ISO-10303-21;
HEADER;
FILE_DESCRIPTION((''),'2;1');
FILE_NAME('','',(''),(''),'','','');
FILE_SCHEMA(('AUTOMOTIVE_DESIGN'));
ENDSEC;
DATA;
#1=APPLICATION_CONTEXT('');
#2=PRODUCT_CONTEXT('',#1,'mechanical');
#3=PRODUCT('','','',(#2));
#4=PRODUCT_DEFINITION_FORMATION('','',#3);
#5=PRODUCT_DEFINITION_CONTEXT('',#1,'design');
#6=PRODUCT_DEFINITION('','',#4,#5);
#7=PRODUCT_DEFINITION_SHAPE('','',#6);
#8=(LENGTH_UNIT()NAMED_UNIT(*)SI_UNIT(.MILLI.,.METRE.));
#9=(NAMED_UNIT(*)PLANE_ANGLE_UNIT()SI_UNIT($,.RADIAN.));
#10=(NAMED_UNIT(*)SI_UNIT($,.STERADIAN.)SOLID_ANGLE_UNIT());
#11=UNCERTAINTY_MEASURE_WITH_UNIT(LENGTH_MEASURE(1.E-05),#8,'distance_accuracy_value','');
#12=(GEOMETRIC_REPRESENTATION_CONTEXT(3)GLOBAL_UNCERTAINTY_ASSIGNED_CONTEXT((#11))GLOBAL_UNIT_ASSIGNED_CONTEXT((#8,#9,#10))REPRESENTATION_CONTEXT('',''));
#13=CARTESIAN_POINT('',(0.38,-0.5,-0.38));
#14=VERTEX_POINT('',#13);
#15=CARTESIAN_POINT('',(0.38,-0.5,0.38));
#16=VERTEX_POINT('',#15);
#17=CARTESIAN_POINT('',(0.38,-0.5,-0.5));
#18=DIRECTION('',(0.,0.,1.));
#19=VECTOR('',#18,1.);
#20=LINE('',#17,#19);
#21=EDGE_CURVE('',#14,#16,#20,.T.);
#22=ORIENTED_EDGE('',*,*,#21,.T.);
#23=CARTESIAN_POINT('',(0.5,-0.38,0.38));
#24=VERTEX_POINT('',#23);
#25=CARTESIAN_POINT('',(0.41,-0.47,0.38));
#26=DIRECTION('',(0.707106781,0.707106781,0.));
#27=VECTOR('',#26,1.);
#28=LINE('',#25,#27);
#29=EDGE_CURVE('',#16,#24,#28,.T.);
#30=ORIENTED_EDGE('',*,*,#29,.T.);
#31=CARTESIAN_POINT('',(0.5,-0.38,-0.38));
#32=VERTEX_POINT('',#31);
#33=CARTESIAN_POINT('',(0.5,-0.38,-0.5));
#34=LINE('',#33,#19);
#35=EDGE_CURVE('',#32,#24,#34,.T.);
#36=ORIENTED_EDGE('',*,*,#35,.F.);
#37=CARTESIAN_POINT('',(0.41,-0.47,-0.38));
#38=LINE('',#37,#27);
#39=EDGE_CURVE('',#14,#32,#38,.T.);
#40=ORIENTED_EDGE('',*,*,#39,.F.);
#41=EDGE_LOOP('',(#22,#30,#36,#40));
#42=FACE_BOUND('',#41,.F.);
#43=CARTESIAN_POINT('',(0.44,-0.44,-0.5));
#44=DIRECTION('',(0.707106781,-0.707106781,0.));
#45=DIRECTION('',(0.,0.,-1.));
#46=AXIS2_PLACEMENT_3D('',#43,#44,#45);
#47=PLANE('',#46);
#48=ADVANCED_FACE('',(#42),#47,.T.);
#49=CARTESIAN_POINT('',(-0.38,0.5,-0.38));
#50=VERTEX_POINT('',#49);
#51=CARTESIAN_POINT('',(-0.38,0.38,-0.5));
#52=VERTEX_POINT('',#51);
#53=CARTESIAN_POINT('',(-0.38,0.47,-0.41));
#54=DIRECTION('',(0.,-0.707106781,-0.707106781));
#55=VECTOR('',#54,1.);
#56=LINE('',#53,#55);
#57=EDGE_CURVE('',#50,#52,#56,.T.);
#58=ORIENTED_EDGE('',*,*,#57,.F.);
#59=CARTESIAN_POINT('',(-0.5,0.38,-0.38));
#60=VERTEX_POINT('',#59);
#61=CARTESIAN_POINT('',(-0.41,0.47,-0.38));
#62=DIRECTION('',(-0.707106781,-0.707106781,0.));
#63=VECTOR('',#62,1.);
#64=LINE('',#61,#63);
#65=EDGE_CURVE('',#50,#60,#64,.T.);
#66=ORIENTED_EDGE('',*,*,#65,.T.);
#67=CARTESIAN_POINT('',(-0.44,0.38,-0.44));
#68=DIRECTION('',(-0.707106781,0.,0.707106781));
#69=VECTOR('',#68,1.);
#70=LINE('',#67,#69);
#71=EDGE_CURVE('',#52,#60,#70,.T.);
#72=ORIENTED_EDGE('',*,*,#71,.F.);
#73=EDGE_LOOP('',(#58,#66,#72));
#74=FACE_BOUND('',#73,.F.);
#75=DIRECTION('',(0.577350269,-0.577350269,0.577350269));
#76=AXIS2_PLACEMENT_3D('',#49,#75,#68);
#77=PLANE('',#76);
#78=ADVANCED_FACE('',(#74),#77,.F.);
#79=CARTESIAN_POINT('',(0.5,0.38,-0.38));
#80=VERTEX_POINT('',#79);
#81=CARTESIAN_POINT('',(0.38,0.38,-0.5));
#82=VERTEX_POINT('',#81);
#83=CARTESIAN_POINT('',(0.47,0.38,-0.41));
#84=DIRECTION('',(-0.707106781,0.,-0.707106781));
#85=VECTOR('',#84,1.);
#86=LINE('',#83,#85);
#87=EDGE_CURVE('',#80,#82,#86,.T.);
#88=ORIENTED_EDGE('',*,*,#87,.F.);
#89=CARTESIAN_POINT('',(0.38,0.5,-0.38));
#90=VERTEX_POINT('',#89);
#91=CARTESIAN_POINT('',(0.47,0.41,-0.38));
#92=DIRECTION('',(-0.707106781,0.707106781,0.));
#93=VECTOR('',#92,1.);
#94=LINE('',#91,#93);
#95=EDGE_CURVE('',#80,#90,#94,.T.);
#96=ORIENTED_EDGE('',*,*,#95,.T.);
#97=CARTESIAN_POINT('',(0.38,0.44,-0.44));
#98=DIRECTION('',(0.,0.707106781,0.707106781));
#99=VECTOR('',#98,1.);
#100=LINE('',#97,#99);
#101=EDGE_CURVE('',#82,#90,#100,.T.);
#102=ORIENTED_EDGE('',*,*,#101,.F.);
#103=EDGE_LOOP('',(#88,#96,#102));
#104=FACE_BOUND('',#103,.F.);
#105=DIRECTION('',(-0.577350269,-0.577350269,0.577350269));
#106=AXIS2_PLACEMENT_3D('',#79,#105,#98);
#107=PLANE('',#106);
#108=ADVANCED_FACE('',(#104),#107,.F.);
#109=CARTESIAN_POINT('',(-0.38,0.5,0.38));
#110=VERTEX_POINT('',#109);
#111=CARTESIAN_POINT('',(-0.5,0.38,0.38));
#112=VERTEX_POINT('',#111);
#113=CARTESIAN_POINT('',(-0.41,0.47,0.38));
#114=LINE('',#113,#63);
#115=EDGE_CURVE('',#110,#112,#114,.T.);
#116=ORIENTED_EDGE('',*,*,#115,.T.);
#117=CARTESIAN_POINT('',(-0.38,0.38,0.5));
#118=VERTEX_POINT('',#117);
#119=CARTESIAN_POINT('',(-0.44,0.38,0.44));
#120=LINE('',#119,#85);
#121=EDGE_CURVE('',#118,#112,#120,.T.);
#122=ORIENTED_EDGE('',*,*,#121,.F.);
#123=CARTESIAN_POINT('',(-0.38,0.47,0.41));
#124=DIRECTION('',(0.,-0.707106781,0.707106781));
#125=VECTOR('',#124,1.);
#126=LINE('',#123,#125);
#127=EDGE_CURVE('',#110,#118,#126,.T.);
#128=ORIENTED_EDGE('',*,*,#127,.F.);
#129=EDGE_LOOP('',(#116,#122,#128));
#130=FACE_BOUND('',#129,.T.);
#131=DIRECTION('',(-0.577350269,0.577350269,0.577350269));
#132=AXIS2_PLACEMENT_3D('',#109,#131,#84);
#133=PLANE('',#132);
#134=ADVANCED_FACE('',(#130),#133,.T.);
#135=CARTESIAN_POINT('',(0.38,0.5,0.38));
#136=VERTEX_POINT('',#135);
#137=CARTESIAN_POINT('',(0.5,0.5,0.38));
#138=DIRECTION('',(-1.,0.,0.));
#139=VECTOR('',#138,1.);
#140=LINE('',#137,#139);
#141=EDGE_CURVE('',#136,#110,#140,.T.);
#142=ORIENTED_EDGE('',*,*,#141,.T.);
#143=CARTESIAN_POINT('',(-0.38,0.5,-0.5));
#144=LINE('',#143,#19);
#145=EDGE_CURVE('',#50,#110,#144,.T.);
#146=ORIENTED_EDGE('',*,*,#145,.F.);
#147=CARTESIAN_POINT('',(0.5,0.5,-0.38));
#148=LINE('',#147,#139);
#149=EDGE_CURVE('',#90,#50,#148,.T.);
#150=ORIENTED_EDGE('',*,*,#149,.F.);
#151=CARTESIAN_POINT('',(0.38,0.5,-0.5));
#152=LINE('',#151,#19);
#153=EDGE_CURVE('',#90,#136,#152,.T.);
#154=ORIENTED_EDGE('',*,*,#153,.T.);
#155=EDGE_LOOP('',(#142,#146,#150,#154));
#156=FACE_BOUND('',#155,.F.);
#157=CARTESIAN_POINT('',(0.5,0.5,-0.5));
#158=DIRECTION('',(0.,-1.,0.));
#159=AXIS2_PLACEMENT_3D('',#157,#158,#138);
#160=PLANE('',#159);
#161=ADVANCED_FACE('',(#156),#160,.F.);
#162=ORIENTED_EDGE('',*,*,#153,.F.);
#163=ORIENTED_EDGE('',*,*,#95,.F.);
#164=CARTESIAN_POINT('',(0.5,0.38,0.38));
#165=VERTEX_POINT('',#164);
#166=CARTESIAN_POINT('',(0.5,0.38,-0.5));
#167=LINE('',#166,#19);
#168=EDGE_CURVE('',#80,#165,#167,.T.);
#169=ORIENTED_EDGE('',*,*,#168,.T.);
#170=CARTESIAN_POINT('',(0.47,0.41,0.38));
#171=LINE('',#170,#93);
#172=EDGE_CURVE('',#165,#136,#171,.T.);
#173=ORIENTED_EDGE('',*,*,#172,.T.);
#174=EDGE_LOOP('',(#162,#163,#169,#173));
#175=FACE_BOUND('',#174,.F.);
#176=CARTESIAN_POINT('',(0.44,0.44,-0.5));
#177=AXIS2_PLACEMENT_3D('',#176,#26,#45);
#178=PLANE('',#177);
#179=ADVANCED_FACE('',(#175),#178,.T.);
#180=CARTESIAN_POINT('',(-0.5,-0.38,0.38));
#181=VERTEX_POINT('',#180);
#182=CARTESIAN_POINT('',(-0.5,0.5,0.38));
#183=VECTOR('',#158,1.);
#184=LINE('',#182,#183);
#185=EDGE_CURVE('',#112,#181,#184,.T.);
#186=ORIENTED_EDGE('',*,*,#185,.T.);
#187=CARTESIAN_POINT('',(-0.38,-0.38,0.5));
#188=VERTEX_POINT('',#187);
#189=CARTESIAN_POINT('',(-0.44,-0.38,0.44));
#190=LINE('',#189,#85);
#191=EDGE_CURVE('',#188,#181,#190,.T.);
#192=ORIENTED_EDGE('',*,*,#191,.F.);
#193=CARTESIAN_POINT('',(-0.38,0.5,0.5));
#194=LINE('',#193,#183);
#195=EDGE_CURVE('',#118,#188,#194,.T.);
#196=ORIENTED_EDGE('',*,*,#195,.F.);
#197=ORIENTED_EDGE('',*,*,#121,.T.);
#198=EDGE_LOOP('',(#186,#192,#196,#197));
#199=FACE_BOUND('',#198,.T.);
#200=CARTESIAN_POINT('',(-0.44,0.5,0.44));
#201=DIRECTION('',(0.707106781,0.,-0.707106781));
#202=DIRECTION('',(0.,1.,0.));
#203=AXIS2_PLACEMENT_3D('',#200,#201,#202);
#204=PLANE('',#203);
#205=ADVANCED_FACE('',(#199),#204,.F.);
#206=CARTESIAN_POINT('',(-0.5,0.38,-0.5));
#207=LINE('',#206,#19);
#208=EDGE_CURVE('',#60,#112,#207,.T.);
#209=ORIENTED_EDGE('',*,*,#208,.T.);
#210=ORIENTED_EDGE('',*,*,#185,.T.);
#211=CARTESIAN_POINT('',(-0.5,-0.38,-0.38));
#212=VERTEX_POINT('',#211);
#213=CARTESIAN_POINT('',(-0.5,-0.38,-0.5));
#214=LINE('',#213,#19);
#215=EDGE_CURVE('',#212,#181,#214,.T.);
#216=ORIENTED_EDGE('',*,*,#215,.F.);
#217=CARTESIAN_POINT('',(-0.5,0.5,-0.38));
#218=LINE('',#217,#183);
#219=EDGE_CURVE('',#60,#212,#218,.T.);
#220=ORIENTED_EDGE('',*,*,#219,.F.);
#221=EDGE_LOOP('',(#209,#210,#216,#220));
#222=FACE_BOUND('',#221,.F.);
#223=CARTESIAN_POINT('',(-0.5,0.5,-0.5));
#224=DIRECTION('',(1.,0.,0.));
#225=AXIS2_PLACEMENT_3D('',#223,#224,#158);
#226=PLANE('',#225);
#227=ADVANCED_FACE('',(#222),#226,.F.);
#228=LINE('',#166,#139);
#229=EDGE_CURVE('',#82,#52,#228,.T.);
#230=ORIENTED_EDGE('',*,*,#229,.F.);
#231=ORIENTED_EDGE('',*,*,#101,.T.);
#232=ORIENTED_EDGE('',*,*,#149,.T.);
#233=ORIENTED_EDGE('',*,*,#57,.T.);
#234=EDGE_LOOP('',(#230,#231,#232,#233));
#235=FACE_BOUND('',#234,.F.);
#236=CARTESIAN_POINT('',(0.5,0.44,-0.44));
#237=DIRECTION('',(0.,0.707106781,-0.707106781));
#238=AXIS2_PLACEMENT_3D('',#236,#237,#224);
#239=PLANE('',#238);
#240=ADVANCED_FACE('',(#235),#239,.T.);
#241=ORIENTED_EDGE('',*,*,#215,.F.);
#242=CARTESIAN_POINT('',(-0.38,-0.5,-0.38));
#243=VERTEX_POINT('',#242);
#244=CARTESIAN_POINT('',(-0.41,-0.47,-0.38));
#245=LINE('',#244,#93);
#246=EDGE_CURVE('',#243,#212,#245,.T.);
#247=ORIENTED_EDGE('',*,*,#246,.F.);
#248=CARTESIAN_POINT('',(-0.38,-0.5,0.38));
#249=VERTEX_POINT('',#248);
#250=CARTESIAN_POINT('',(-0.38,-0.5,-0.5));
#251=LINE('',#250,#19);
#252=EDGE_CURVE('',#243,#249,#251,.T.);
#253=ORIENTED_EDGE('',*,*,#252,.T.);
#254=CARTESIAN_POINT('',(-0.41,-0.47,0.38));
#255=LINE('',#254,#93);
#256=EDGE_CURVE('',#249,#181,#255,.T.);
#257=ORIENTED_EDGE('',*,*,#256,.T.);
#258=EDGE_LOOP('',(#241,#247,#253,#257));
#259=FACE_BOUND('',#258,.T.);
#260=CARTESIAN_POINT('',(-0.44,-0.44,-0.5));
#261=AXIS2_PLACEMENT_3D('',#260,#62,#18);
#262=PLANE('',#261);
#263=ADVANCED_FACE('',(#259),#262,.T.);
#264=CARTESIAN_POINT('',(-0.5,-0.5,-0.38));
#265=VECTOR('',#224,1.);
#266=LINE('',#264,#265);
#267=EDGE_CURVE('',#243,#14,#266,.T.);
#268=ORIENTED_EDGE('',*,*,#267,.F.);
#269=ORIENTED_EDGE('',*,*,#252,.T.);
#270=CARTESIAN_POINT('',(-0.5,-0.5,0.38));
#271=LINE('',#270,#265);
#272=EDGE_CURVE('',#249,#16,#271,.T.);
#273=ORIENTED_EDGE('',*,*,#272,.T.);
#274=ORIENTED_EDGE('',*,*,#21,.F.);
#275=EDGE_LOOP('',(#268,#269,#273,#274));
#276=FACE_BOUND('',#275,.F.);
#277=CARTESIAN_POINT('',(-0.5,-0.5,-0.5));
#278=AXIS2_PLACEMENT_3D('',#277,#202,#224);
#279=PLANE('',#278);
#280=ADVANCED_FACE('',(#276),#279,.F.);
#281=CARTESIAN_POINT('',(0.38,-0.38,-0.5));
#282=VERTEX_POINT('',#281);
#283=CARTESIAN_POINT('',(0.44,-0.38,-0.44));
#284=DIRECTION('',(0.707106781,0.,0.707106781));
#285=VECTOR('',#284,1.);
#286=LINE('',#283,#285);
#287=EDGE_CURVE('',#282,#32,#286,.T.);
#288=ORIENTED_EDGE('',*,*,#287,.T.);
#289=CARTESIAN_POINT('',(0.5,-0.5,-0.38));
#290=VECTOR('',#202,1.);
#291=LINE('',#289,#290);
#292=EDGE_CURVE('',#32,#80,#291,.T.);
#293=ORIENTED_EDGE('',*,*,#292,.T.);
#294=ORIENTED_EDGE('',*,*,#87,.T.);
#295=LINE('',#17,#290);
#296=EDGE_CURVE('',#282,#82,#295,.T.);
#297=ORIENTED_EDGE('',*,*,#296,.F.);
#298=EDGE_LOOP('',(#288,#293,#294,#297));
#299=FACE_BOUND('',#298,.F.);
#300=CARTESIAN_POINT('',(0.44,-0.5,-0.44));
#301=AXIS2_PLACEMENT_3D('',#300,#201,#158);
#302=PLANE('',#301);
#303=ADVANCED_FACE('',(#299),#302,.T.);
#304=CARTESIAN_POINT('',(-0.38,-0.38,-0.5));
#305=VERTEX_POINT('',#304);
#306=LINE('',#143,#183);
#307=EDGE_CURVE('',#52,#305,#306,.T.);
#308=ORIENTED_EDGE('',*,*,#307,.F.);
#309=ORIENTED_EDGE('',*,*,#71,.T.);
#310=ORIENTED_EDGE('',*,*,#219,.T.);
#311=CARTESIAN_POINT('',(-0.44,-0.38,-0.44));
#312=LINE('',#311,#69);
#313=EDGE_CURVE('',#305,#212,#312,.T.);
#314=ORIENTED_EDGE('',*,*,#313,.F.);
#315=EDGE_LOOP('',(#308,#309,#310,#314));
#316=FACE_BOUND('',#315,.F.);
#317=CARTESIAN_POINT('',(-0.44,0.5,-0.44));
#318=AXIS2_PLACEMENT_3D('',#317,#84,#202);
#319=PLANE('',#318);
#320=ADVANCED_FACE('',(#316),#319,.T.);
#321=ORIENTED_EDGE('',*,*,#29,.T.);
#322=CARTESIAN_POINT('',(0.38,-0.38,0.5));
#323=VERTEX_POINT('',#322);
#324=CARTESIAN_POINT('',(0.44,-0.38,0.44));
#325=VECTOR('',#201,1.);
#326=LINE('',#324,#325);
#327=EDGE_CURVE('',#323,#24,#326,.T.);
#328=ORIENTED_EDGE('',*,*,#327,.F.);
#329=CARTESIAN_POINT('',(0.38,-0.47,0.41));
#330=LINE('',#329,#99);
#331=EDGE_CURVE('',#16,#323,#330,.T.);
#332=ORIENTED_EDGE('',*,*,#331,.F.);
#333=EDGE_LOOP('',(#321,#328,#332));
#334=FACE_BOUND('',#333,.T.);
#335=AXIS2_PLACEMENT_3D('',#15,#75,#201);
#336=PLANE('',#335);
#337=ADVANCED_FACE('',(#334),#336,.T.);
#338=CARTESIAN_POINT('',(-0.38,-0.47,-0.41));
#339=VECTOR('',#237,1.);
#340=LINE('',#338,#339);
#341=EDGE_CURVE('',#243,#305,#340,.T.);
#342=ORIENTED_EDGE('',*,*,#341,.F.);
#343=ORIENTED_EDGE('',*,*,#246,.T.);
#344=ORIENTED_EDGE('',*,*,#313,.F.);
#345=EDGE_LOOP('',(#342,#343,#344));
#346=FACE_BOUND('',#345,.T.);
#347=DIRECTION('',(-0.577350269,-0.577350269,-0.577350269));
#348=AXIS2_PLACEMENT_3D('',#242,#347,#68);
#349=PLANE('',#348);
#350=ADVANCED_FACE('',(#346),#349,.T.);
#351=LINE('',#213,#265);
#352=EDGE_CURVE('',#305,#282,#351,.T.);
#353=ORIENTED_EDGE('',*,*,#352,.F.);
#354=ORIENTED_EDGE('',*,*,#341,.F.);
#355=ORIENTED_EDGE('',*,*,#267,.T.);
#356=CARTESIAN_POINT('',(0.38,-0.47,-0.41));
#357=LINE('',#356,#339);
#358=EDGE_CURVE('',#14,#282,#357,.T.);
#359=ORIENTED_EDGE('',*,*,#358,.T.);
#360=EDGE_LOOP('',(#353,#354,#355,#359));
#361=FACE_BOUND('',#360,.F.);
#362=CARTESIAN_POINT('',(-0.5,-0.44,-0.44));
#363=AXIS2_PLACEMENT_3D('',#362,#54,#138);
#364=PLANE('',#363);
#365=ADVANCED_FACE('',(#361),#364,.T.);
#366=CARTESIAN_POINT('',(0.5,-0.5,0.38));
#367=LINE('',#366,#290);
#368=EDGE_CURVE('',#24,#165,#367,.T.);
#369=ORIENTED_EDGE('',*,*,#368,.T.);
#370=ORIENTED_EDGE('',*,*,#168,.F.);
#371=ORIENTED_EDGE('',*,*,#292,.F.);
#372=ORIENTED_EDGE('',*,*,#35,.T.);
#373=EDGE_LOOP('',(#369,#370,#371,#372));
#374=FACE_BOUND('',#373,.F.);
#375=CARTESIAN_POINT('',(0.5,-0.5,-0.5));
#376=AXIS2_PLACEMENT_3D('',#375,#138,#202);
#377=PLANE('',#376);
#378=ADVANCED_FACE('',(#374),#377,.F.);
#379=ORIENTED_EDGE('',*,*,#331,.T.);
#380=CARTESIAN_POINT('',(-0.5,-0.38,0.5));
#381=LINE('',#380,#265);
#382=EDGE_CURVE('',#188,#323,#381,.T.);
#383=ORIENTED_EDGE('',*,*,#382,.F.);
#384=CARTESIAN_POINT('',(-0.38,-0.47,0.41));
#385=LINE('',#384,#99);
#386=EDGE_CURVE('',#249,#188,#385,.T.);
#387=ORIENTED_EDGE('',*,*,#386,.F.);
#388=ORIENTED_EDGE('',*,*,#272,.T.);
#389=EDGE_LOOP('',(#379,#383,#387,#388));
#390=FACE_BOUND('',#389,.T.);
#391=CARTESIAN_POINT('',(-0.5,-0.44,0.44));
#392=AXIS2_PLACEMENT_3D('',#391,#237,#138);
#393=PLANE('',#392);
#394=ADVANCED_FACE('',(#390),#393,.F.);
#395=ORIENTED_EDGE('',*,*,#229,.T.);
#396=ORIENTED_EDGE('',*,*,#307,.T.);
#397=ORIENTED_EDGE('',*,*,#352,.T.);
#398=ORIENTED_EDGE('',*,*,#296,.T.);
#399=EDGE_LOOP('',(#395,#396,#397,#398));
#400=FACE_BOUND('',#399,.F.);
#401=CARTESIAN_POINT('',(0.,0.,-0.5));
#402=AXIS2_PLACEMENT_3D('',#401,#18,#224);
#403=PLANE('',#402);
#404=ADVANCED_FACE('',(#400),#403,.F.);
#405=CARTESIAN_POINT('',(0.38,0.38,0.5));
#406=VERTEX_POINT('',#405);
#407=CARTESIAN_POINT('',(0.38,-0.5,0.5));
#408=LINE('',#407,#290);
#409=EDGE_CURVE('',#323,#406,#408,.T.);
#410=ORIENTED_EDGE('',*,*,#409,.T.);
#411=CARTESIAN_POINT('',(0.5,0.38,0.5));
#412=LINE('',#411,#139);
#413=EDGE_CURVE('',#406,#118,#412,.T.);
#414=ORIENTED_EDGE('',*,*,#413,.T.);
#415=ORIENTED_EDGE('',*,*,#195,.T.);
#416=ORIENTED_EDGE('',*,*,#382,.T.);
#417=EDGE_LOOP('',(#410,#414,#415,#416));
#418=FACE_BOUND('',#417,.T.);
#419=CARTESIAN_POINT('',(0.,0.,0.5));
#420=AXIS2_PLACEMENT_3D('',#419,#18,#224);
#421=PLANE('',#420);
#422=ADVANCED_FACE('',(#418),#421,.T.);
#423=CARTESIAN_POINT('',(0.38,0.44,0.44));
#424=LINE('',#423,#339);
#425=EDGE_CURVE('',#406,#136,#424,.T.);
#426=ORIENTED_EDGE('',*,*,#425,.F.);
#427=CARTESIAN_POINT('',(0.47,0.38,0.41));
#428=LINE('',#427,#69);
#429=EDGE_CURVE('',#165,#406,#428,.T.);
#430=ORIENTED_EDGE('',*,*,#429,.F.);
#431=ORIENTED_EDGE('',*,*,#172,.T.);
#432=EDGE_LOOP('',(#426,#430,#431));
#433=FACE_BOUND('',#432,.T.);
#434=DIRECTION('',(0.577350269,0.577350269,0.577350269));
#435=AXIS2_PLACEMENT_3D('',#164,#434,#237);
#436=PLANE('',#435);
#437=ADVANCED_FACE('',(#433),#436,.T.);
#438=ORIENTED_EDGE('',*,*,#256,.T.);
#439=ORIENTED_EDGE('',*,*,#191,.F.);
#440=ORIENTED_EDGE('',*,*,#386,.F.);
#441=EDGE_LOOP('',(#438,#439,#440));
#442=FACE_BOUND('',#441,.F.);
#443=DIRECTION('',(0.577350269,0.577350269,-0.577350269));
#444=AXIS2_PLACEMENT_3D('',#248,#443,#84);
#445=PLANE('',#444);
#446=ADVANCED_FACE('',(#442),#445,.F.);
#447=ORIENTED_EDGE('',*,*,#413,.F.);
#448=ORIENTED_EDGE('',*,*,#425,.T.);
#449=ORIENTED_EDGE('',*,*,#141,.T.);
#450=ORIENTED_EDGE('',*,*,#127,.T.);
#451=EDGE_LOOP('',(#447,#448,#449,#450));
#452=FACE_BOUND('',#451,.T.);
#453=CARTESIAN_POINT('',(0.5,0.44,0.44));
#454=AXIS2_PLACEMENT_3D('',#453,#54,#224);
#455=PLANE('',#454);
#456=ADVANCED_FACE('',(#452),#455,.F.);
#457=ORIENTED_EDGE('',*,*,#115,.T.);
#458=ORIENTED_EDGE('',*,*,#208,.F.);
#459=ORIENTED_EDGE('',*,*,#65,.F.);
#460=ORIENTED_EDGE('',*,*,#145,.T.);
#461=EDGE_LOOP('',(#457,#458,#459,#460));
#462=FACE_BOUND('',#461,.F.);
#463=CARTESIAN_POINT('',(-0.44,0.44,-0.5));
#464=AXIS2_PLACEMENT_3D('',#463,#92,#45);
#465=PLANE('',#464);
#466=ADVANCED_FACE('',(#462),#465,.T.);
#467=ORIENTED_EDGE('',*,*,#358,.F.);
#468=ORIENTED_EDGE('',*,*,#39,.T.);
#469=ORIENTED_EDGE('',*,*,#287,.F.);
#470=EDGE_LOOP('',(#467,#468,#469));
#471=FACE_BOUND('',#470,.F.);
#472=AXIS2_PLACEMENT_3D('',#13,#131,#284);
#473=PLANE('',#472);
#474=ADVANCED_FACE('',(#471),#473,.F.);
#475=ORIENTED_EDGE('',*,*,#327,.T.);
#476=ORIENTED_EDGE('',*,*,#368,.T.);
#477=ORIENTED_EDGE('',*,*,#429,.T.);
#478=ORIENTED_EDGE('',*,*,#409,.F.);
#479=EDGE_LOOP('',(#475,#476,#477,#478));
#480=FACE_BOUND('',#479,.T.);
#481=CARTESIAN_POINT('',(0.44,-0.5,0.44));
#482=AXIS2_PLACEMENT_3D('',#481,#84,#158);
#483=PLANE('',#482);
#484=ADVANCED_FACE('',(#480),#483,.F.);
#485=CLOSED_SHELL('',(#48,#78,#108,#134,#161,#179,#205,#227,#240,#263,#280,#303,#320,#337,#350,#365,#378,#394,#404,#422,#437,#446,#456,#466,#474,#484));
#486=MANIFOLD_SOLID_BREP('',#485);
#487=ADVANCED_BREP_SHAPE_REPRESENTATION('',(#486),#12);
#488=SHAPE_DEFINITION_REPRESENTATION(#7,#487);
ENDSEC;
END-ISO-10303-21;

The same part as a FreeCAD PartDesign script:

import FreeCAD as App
import Part
import Sketcher


def add_polygon(sketch, points):
    """Adds a closed chain of lines whose ends are joined by coincident constraints."""
    first, n = sketch.GeometryCount, len(points)
    for a, b in zip(points, points[1:] + points[:1]):
        sketch.addGeometry(Part.LineSegment(App.Vector(*a, 0), App.Vector(*b, 0)), False)
    for i in range(n):
        sketch.addConstraint(Sketcher.Constraint("Coincident", first + i, 2, first + (i + 1) % n, 1))

doc = App.newDocument("Part")
body = doc.addObject("PartDesign::Body", "Body")

sketch1 = doc.addObject("Sketcher::SketchObject", "Sketch")
body.addObject(sketch1)
sketch1.AttachmentSupport = (doc.XY_Plane, [""])
sketch1.MapMode = "FlatFace"
sketch1.AttachmentOffset = App.Placement(App.Vector(0, 0, -0.5), App.Rotation())
add_polygon(sketch1, [(-0.5, 0.5), (-0.5, -0.5), (0.5, -0.5), (0.5, 0.5)])
sketch1.addConstraint([
    Sketcher.Constraint("Vertical", 0),
    Sketcher.Constraint("Horizontal", 1),
    Sketcher.Constraint("Vertical", 2),
    Sketcher.Constraint("Horizontal", 3),
    Sketcher.Constraint("Symmetric", 0, 2, 2, 2, -1, 1),
    Sketcher.Constraint("Equal", 3, 0),
    Sketcher.Constraint("DistanceX", 1, 1, 1, 2, 1.0),
])
pad1 = doc.addObject("PartDesign::Pad", "Pad")
body.addObject(pad1)
pad1.Profile = sketch1
pad1.Length = 1
doc.recompute()

chamfer = doc.addObject("PartDesign::Chamfer", "Chamfer")
body.addObject(chamfer)
chamfer.Base = (pad1, ["Edge1"])
chamfer.UseAllEdges = True
chamfer.Size = 0.12

doc.recompute()
